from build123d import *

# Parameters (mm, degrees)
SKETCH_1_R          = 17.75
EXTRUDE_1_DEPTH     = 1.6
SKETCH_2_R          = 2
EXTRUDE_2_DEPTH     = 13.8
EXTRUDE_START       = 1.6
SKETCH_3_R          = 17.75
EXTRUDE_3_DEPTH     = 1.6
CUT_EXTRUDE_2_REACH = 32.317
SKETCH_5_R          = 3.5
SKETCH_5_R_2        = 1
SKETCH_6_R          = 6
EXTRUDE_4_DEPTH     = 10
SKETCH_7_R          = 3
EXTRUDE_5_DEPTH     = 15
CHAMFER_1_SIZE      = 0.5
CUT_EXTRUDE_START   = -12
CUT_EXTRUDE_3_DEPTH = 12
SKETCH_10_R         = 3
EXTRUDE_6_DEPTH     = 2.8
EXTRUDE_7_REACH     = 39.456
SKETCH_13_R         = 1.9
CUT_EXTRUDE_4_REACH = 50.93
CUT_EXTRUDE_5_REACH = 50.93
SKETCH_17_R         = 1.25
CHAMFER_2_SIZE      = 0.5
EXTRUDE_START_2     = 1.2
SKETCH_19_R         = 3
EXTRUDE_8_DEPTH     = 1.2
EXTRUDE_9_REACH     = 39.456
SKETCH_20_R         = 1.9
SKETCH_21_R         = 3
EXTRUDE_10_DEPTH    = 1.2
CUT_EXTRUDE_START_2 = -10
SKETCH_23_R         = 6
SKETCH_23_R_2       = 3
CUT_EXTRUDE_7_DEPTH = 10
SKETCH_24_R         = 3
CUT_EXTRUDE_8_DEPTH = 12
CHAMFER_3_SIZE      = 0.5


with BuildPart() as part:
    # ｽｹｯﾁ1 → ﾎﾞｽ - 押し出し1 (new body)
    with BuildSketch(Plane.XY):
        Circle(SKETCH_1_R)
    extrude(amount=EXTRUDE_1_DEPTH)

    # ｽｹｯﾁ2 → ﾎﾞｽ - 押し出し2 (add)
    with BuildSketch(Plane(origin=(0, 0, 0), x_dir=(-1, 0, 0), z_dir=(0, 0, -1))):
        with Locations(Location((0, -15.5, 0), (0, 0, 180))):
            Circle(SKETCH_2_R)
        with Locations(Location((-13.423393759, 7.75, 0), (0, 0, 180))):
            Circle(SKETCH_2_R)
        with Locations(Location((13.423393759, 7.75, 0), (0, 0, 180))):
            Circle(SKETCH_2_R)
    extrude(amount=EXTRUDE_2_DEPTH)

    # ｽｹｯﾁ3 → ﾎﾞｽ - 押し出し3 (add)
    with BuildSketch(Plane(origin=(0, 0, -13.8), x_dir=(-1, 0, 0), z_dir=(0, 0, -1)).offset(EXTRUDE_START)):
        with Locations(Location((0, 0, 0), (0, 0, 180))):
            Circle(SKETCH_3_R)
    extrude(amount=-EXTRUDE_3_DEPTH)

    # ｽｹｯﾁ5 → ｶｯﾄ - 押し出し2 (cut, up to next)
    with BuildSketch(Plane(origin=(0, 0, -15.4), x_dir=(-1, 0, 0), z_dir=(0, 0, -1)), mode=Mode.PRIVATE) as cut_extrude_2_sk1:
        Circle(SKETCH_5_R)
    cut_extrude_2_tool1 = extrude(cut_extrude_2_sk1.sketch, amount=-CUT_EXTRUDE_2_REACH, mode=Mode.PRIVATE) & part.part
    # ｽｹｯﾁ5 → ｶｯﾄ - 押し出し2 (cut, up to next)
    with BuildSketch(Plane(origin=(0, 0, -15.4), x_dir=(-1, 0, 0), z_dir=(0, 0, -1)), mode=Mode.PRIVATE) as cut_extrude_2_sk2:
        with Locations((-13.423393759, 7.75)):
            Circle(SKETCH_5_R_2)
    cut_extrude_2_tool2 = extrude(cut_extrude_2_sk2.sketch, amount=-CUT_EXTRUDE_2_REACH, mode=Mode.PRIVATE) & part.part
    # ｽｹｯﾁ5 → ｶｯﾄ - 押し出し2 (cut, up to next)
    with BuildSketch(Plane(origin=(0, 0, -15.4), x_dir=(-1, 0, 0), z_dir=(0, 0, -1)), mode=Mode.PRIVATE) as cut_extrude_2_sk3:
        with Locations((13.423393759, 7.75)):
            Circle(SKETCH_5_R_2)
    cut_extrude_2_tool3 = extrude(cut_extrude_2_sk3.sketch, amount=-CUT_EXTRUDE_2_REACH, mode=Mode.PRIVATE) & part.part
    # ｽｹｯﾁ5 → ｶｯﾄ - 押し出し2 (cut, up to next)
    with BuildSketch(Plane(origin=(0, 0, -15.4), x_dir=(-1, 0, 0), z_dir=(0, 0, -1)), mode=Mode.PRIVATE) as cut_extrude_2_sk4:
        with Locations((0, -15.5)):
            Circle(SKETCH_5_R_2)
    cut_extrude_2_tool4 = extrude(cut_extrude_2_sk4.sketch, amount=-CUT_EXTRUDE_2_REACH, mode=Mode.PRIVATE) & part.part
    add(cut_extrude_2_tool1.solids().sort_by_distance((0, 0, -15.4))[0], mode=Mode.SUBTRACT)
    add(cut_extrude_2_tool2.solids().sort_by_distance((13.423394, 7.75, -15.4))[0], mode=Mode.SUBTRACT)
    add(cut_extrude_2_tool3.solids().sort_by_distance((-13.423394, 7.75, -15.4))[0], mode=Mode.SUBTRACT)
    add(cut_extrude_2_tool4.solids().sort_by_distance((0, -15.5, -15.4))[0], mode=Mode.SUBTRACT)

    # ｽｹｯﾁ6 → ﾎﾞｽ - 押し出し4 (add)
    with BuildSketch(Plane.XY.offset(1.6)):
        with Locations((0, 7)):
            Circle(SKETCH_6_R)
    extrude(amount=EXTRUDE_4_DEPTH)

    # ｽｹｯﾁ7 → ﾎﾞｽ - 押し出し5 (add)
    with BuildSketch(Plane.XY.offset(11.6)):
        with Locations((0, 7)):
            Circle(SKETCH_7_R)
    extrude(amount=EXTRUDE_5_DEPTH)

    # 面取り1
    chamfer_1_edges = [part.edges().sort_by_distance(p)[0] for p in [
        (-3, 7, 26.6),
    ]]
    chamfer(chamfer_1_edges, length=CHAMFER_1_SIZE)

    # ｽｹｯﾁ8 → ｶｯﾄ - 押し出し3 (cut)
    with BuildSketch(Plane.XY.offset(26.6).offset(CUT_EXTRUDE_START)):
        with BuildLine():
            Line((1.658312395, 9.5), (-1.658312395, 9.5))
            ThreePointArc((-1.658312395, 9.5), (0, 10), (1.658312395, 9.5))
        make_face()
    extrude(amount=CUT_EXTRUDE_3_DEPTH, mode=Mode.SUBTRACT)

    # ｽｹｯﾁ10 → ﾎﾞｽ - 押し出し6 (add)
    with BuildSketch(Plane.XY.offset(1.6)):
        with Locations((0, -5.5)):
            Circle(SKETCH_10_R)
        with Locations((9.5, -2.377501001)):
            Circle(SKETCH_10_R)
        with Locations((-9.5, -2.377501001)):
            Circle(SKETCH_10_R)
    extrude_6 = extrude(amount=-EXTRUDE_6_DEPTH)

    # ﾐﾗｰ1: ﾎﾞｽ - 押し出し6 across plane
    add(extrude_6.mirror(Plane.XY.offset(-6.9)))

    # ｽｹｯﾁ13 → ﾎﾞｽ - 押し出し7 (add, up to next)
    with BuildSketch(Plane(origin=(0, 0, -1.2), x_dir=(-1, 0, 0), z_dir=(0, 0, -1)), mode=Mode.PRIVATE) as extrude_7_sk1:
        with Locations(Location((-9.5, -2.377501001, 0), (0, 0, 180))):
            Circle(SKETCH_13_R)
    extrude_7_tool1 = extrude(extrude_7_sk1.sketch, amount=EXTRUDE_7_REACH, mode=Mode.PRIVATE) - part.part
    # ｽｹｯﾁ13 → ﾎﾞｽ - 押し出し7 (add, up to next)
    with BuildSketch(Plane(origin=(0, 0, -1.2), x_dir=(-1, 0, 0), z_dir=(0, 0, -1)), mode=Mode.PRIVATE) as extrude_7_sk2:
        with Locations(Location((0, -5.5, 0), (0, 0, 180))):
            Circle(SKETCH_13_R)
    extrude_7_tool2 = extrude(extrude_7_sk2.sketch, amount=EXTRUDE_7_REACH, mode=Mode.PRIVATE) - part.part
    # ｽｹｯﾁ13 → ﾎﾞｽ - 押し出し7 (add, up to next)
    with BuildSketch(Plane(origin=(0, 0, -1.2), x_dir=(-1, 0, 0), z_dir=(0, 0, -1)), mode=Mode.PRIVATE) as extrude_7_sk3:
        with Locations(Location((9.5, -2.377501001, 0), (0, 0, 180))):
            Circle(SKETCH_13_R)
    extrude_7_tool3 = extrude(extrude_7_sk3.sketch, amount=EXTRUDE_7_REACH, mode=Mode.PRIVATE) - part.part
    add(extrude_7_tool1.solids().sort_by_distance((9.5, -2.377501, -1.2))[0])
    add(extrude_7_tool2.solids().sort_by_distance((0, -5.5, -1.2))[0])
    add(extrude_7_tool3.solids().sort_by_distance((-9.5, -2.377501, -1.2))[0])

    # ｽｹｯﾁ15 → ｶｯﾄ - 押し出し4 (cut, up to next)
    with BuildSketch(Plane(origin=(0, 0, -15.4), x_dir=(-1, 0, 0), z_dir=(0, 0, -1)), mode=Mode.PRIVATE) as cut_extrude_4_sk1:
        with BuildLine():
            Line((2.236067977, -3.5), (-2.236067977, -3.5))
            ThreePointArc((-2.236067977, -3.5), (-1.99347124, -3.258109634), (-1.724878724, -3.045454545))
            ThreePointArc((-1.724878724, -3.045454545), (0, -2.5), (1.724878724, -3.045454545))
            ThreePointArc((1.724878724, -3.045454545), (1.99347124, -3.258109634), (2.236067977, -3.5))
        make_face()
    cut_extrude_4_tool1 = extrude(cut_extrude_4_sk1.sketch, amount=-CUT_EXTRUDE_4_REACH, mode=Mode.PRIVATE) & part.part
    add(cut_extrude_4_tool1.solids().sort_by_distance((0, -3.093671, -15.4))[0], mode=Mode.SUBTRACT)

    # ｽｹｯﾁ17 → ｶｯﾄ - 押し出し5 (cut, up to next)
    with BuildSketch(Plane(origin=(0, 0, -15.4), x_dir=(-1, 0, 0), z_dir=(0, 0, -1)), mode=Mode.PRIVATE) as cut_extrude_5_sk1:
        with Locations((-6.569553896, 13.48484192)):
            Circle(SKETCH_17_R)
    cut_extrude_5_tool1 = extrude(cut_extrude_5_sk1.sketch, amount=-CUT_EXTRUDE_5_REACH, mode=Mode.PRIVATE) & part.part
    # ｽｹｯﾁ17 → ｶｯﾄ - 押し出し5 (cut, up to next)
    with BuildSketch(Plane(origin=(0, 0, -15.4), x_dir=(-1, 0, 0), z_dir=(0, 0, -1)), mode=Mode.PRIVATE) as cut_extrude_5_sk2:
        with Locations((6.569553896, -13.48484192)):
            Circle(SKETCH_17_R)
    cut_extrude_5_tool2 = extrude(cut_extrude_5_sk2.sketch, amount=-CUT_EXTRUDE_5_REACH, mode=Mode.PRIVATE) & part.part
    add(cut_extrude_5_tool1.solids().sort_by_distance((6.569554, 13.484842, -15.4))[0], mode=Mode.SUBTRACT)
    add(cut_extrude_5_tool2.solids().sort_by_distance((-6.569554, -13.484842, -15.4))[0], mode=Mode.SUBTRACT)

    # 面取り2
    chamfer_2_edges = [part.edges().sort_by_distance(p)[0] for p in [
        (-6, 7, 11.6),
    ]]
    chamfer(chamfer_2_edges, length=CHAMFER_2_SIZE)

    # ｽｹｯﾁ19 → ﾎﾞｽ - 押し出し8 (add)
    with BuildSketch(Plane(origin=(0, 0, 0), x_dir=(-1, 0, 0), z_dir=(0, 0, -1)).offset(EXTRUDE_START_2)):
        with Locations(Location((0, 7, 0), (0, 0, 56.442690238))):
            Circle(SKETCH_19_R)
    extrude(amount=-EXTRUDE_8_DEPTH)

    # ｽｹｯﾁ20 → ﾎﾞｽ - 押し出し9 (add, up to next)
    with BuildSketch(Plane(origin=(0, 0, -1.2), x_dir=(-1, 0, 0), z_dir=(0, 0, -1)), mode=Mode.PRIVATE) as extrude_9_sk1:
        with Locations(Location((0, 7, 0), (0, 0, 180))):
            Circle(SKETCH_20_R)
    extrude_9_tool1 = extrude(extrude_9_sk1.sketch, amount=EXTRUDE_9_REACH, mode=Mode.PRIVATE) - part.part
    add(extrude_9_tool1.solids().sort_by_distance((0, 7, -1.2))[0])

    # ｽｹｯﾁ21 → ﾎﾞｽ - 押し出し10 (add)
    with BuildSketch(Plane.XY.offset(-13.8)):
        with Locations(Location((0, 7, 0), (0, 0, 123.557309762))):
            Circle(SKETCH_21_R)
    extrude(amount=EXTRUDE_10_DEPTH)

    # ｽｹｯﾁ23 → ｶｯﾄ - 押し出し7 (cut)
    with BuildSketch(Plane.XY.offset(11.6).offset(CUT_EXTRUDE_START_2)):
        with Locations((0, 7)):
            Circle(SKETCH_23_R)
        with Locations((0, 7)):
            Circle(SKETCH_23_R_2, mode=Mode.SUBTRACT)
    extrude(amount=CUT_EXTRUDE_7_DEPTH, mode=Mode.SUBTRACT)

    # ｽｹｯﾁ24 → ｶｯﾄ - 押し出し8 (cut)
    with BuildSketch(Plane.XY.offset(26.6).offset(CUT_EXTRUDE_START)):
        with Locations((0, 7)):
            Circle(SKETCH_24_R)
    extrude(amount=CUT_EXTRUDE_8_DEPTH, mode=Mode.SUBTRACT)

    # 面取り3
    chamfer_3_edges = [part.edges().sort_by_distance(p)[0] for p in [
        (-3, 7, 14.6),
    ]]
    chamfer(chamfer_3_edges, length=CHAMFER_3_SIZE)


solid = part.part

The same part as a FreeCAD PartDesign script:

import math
import FreeCAD as App
import Part
import Sketcher


def edges_at(feature, points):
    """Names of the edges that pass closest to the given points."""
    edges = feature.Shape.Edges
    near = lambda p: min(range(len(edges)), key=lambda i: edges[i].distToShape(Part.Vertex(*p))[0])
    return sorted({f"Edge{near(p) + 1}" for p in points})

doc = App.newDocument("Part")
body = doc.addObject("PartDesign::Body", "Body")

# Sketch on XY plane
sketch1 = doc.addObject("Sketcher::SketchObject", "Sketch")
body.addObject(sketch1)
sketch1.AttachmentSupport = (doc.XY_Plane, [""])
sketch1.MapMode = "FlatFace"
sketch1.addGeometry(Part.Circle(App.Vector(0, 0, 0), App.Vector(0, 0, 1), 18), False)
sketch1.addConstraint([
    Sketcher.Constraint("Coincident", 0, 3, -1, 1),
    Sketcher.Constraint("Diameter", 0, 35.5),
])
pad1 = doc.addObject("PartDesign::Pad", "Pad")
body.addObject(pad1)
pad1.Profile = sketch1
pad1.Length = 1.6

# Sketch on XY plane
sketch2 = doc.addObject("Sketcher::SketchObject", "Sketch001")
body.addObject(sketch2)
sketch2.AttachmentSupport = (doc.XY_Plane, [""])
sketch2.MapMode = "FlatFace"
sketch2.addGeometry([
    Part.Circle(App.Vector(0, -15.5, 0), App.Vector(0, 0, 1), 2),
    Part.Circle(App.Vector(13.4, 7.8, 0), App.Vector(0, 0, 1), 2),
    Part.Circle(App.Vector(-13.4, 7.8, 0), App.Vector(0, 0, 1), 2),
], False)
sketch2.addConstraint([
    Sketcher.Constraint("Equal", 0, 1),
    Sketcher.Constraint("Equal", 1, 2),
    Sketcher.Constraint("Symmetric", 1, 3, 2, 3, -2),
    Sketcher.Constraint("PointOnObject", 0, 3, -2),
    Sketcher.Constraint("Diameter", 0, 4.0),
    Sketcher.Constraint("DistanceY", 0, 3, -1, 1, 15.5),
    Sketcher.Constraint("DistanceY", -1, 1, 1, 3, 7.75),
    Sketcher.Constraint("DistanceX", -1, 1, 1, 3, 13.423394),
])
pad2 = doc.addObject("PartDesign::Pad", "Pad001")
body.addObject(pad2)
pad2.Profile = sketch2
pad2.Length = 13.8
pad2.Reversed = True

# Sketch on XY plane
sketch3 = doc.addObject("Sketcher::SketchObject", "Sketch002")
body.addObject(sketch3)
sketch3.AttachmentSupport = (doc.XY_Plane, [""])
sketch3.MapMode = "FlatFace"
sketch3.AttachmentOffset = App.Placement(App.Vector(0, 0, -15.4), App.Rotation())
sketch3.addGeometry(Part.Circle(App.Vector(0, 0, 0), App.Vector(0, 0, 1), 18), False)
sketch3.addConstraint([
    Sketcher.Constraint("Coincident", 0, 3, -1, 1),
    Sketcher.Constraint("Diameter", 0, 35.5),
])
pad3 = doc.addObject("PartDesign::Pad", "Pad002")
body.addObject(pad3)
pad3.Profile = sketch3
pad3.Length = 1.6

# Sketch on XY plane
sketch4 = doc.addObject("Sketcher::SketchObject", "Sketch003")
body.addObject(sketch4)
sketch4.AttachmentSupport = (doc.XY_Plane, [""])
sketch4.MapMode = "FlatFace"
sketch4.AttachmentOffset = App.Placement(App.Vector(0, 0, -15.4), App.Rotation())
sketch4.addGeometry(Part.Circle(App.Vector(0, 0, 0), App.Vector(0, 0, 1), 3.5), False)
sketch4.addConstraint([
    Sketcher.Constraint("Coincident", 0, 3, -1, 1),
    Sketcher.Constraint("Diameter", 0, 7.0),
])
pocket1 = doc.addObject("PartDesign::Pocket", "Pocket")
body.addObject(pocket1)
pocket1.Profile = sketch4
pocket1.Type = "UpToFirst"
pocket1.Reversed = True

# Sketch on XY plane
sketch5 = doc.addObject("Sketcher::SketchObject", "Sketch004")
body.addObject(sketch5)
sketch5.AttachmentSupport = (doc.XY_Plane, [""])
sketch5.MapMode = "FlatFace"
sketch5.AttachmentOffset = App.Placement(App.Vector(0, 0, -15.4), App.Rotation())
sketch5.addGeometry(Part.Circle(App.Vector(13.4, 7.8, 0), App.Vector(0, 0, 1), 1), False)
sketch5.addConstraint([
    Sketcher.Constraint("Diameter", 0, 2.0),
    Sketcher.Constraint("DistanceY", -1, 1, 0, 3, 7.75),
    Sketcher.Constraint("DistanceX", -1, 1, 0, 3, 13.423394),
])
pocket2 = doc.addObject("PartDesign::Pocket", "Pocket001")
body.addObject(pocket2)
pocket2.Profile = sketch5
pocket2.Type = "UpToFirst"
pocket2.Reversed = True

# Sketch on XY plane
sketch6 = doc.addObject("Sketcher::SketchObject", "Sketch005")
body.addObject(sketch6)
sketch6.AttachmentSupport = (doc.XY_Plane, [""])
sketch6.MapMode = "FlatFace"
sketch6.AttachmentOffset = App.Placement(App.Vector(0, 0, -15.4), App.Rotation())
sketch6.addGeometry(Part.Circle(App.Vector(-13.4, 7.8, 0), App.Vector(0, 0, 1), 1), False)
sketch6.addConstraint([
    Sketcher.Constraint("Diameter", 0, 2.0),
    Sketcher.Constraint("DistanceY", -1, 1, 0, 3, 7.75),
    Sketcher.Constraint("DistanceX", 0, 3, -1, 1, 13.423394),
])
pocket3 = doc.addObject("PartDesign::Pocket", "Pocket002")
body.addObject(pocket3)
pocket3.Profile = sketch6
pocket3.Type = "UpToFirst"
pocket3.Reversed = True

# Sketch on XY plane
sketch7 = doc.addObject("Sketcher::SketchObject", "Sketch006")
body.addObject(sketch7)
sketch7.AttachmentSupport = (doc.XY_Plane, [""])
sketch7.MapMode = "FlatFace"
sketch7.AttachmentOffset = App.Placement(App.Vector(0, 0, -15.4), App.Rotation())
sketch7.addGeometry(Part.Circle(App.Vector(0, -15.5, 0), App.Vector(0, 0, 1), 1), False)
sketch7.addConstraint([
    Sketcher.Constraint("PointOnObject", 0, 3, -2),
    Sketcher.Constraint("Diameter", 0, 2.0),
    Sketcher.Constraint("DistanceY", 0, 3, -1, 1, 15.5),
])
pocket4 = doc.addObject("PartDesign::Pocket", "Pocket003")
body.addObject(pocket4)
pocket4.Profile = sketch7
pocket4.Type = "UpToFirst"
pocket4.Reversed = True

# Sketch on XY plane
sketch8 = doc.addObject("Sketcher::SketchObject", "Sketch007")
body.addObject(sketch8)
sketch8.AttachmentSupport = (doc.XY_Plane, [""])
sketch8.MapMode = "FlatFace"
sketch8.AttachmentOffset = App.Placement(App.Vector(0, 0, 1.6), App.Rotation())
sketch8.addGeometry(Part.Circle(App.Vector(0, 7, 0), App.Vector(0, 0, 1), 6), False)
sketch8.addConstraint([
    Sketcher.Constraint("PointOnObject", 0, 3, -2),
    Sketcher.Constraint("Diameter", 0, 12.0),
    Sketcher.Constraint("DistanceY", -1, 1, 0, 3, 7.0),
])
pad4 = doc.addObject("PartDesign::Pad", "Pad003")
body.addObject(pad4)
pad4.Profile = sketch8
pad4.Length = 10

# Sketch on XY plane
sketch9 = doc.addObject("Sketcher::SketchObject", "Sketch008")
body.addObject(sketch9)
sketch9.AttachmentSupport = (doc.XY_Plane, [""])
sketch9.MapMode = "FlatFace"
sketch9.AttachmentOffset = App.Placement(App.Vector(0, 0, 11.6), App.Rotation())
sketch9.addGeometry(Part.Circle(App.Vector(0, 7, 0), App.Vector(0, 0, 1), 3), False)
sketch9.addConstraint([
    Sketcher.Constraint("PointOnObject", 0, 3, -2),
    Sketcher.Constraint("Diameter", 0, 6.0),
    Sketcher.Constraint("DistanceY", -1, 1, 0, 3, 7.0),
])
pad5 = doc.addObject("PartDesign::Pad", "Pad004")
body.addObject(pad5)
pad5.Profile = sketch9
pad5.Length = 15
doc.recompute()

chamfer = doc.addObject("PartDesign::Chamfer", "Chamfer")
body.addObject(chamfer)
chamfer.Base = (pad5, edges_at(pad5, [(-3, 7, 26.6)]))
chamfer.Size = 0.5

# Sketch on XY plane
sketch10 = doc.addObject("Sketcher::SketchObject", "Sketch009")
body.addObject(sketch10)
sketch10.AttachmentSupport = (doc.XY_Plane, [""])
sketch10.MapMode = "FlatFace"
sketch10.AttachmentOffset = App.Placement(App.Vector(0, 0, 14.6), App.Rotation())
sketch10.addGeometry([
    Part.LineSegment(App.Vector(-1.7, 9.5, 0), App.Vector(1.7, 9.5, 0)),
    Part.ArcOfCircle(Part.Circle(App.Vector(0, 7, 0), App.Vector(0, 0, 1), 3), math.radians(56), math.radians(124)),
], False)
sketch10.addConstraint([
    Sketcher.Constraint("Coincident", 0, 1, 1, 2),
    Sketcher.Constraint("Coincident", 1, 1, 0, 2),
    Sketcher.Constraint("Horizontal", 0),
    Sketcher.Constraint("PointOnObject", 1, 3, -2),
    Sketcher.Constraint("Radius", 1, 3.0),
    Sketcher.Constraint("DistanceY", -1, 1, 1, 3, 7.0),
    Sketcher.Constraint("DistanceY", -1, 1, 0, 1, 9.5),
])
pocket5 = doc.addObject("PartDesign::Pocket", "Pocket004")
body.addObject(pocket5)
pocket5.Profile = sketch10
pocket5.Length = 12
pocket5.Reversed = True

# Sketch on XY plane
sketch11 = doc.addObject("Sketcher::SketchObject", "Sketch010")
body.addObject(sketch11)
sketch11.AttachmentSupport = (doc.XY_Plane, [""])
sketch11.MapMode = "FlatFace"
sketch11.AttachmentOffset = App.Placement(App.Vector(0, 0, 1.6), App.Rotation())
sketch11.addGeometry([
    Part.Circle(App.Vector(0, -5.5, 0), App.Vector(0, 0, 1), 3),
    Part.Circle(App.Vector(9.5, -2.4, 0), App.Vector(0, 0, 1), 3),
    Part.Circle(App.Vector(-9.5, -2.4, 0), App.Vector(0, 0, 1), 3),
], False)
sketch11.addConstraint([
    Sketcher.Constraint("Equal", 0, 1),
    Sketcher.Constraint("Equal", 1, 2),
    Sketcher.Constraint("Symmetric", 1, 3, 2, 3, -2),
    Sketcher.Constraint("PointOnObject", 0, 3, -2),
    Sketcher.Constraint("Diameter", 0, 6.0),
    Sketcher.Constraint("DistanceX", 2, 3, 1, 3, 19.0),
    Sketcher.Constraint("DistanceY", 0, 3, -1, 1, 5.5),
    Sketcher.Constraint("DistanceY", 1, 3, -1, 1, 2.377501),
])
pad6 = doc.addObject("PartDesign::Pad", "Pad005")
body.addObject(pad6)
pad6.Profile = sketch11
pad6.Length = 2.8
pad6.Reversed = True
doc.recompute()

datumplane = doc.addObject("PartDesign::Plane", "DatumPlane")
body.addObject(datumplane)
datumplane.AttachmentSupport = (doc.XY_Plane, [""])
datumplane.MapMode = "FlatFace"
datumplane.AttachmentOffset = App.Placement(App.Vector(0, 0, -6.9), App.Rotation())
mirrored = doc.addObject("PartDesign::Mirrored", "Mirrored")
body.addObject(mirrored)
mirrored.Originals = [pad6]
mirrored.MirrorPlane = (datumplane, [""])
body.Tip = mirrored

# Sketch on XY plane
sketch12 = doc.addObject("Sketcher::SketchObject", "Sketch011")
body.addObject(sketch12)
sketch12.AttachmentSupport = (doc.XY_Plane, [""])
sketch12.MapMode = "FlatFace"
sketch12.AttachmentOffset = App.Placement(App.Vector(0, 0, -1.2), App.Rotation())
sketch12.addGeometry(Part.Circle(App.Vector(9.5, -2.4, 0), App.Vector(0, 0, 1), 1.9), False)
sketch12.addConstraint([
    Sketcher.Constraint("Diameter", 0, 3.8),
    Sketcher.Constraint("DistanceX", -1, 1, 0, 3, 9.5),
    Sketcher.Constraint("DistanceY", 0, 3, -1, 1, 2.377501),
])
pad7 = doc.addObject("PartDesign::Pad", "Pad006")
body.addObject(pad7)
pad7.Profile = sketch12
pad7.Type = "UpToFirst"
pad7.Reversed = True

# Sketch on XY plane
sketch13 = doc.addObject("Sketcher::SketchObject", "Sketch012")
body.addObject(sketch13)
sketch13.AttachmentSupport = (doc.XY_Plane, [""])
sketch13.MapMode = "FlatFace"
sketch13.AttachmentOffset = App.Placement(App.Vector(0, 0, -1.2), App.Rotation())
sketch13.addGeometry(Part.Circle(App.Vector(0, -5.5, 0), App.Vector(0, 0, 1), 1.9), False)
sketch13.addConstraint([
    Sketcher.Constraint("PointOnObject", 0, 3, -2),
    Sketcher.Constraint("Diameter", 0, 3.8),
    Sketcher.Constraint("DistanceY", 0, 3, -1, 1, 5.5),
])
pad8 = doc.addObject("PartDesign::Pad", "Pad007")
body.addObject(pad8)
pad8.Profile = sketch13
pad8.Type = "UpToFirst"
pad8.Reversed = True

# Sketch on XY plane
sketch14 = doc.addObject("Sketcher::SketchObject", "Sketch013")
body.addObject(sketch14)
sketch14.AttachmentSupport = (doc.XY_Plane, [""])
sketch14.MapMode = "FlatFace"
sketch14.AttachmentOffset = App.Placement(App.Vector(0, 0, -1.2), App.Rotation())
sketch14.addGeometry(Part.Circle(App.Vector(-9.5, -2.4, 0), App.Vector(0, 0, 1), 1.9), False)
sketch14.addConstraint([
    Sketcher.Constraint("Diameter", 0, 3.8),
    Sketcher.Constraint("DistanceX", 0, 3, -1, 1, 9.5),
    Sketcher.Constraint("DistanceY", 0, 3, -1, 1, 2.377501),
])
pad9 = doc.addObject("PartDesign::Pad", "Pad008")
body.addObject(pad9)
pad9.Profile = sketch14
pad9.Type = "UpToFirst"
pad9.Reversed = True

# Sketch on XY plane
sketch15 = doc.addObject("Sketcher::SketchObject", "Sketch014")
body.addObject(sketch15)
sketch15.AttachmentSupport = (doc.XY_Plane, [""])
sketch15.MapMode = "FlatFace"
sketch15.AttachmentOffset = App.Placement(App.Vector(0, 0, -15.4), App.Rotation())
sketch15.addGeometry([
    Part.LineSegment(App.Vector(2.2, -3.5, 0), App.Vector(-2.2, -3.5, 0)),
    Part.ArcOfCircle(Part.Circle(App.Vector(0, -5.5, 0), App.Vector(0, 0, 1), 3), math.radians(125.1), math.radians(138.19)),
    Part.ArcOfCircle(Part.Circle(App.Vector(0, -5.5, 0), App.Vector(0, 0, 1), 3), math.radians(55), math.radians(125)),
    Part.ArcOfCircle(Part.Circle(App.Vector(0, -5.5, 0), App.Vector(0, 0, 1), 3), math.radians(41.81), math.radians(54.9)),
], False)
sketch15.addConstraint([
    Sketcher.Constraint("Coincident", 0, 2, 1, 2),
    Sketcher.Constraint("Tangent", 1, 1, 2, 2),
    Sketcher.Constraint("Tangent", 2, 1, 3, 2),
    Sketcher.Constraint("Coincident", 3, 1, 0, 1),
    Sketcher.Constraint("Horizontal", 0),
    Sketcher.Constraint("Coincident", 3, 3, 1, 3),
    Sketcher.Constraint("Symmetric", 1, 1, 2, 1, -2),
    Sketcher.Constraint("Radius", 1, 3.0),
    Sketcher.Constraint("DistanceY", 3, 3, 0, 2, 2.0),
    Sketcher.Constraint("DistanceY", 1, 3, -1, 1, 5.5),
    Sketcher.Constraint("DistanceX", 1, 1, -1, 1, 1.724879),
])
pocket6 = doc.addObject("PartDesign::Pocket", "Pocket005")
body.addObject(pocket6)
pocket6.Profile = sketch15
pocket6.Type = "UpToFirst"
pocket6.Reversed = True

# Sketch on XY plane
sketch16 = doc.addObject("Sketcher::SketchObject", "Sketch015")
body.addObject(sketch16)
sketch16.AttachmentSupport = (doc.XY_Plane, [""])
sketch16.MapMode = "FlatFace"
sketch16.AttachmentOffset = App.Placement(App.Vector(0, 0, -15.4), App.Rotation())
sketch16.addGeometry(Part.Circle(App.Vector(6.6, 13.5, 0), App.Vector(0, 0, 1), 1.2), False)
sketch16.addConstraint([
    Sketcher.Constraint("Diameter", 0, 2.5),
    Sketcher.Constraint("DistanceY", -1, 1, 0, 3, 13.484842),
    Sketcher.Constraint("DistanceX", -1, 1, 0, 3, 6.569554),
])
pocket7 = doc.addObject("PartDesign::Pocket", "Pocket006")
body.addObject(pocket7)
pocket7.Profile = sketch16
pocket7.Type = "UpToFirst"
pocket7.Reversed = True

# Sketch on XY plane
sketch17 = doc.addObject("Sketcher::SketchObject", "Sketch016")
body.addObject(sketch17)
sketch17.AttachmentSupport = (doc.XY_Plane, [""])
sketch17.MapMode = "FlatFace"
sketch17.AttachmentOffset = App.Placement(App.Vector(0, 0, -15.4), App.Rotation())
sketch17.addGeometry(Part.Circle(App.Vector(-6.6, -13.5, 0), App.Vector(0, 0, 1), 1.2), False)
sketch17.addConstraint([
    Sketcher.Constraint("Diameter", 0, 2.5),
    Sketcher.Constraint("DistanceY", 0, 3, -1, 1, 13.484842),
    Sketcher.Constraint("DistanceX", 0, 3, -1, 1, 6.569554),
])
pocket8 = doc.addObject("PartDesign::Pocket", "Pocket007")
body.addObject(pocket8)
pocket8.Profile = sketch17
pocket8.Type = "UpToFirst"
pocket8.Reversed = True
doc.recompute()

chamfer2 = doc.addObject("PartDesign::Chamfer", "Chamfer001")
body.addObject(chamfer2)
chamfer2.Base = (pocket8, edges_at(pocket8, [(-6, 7, 11.6)]))
chamfer2.Size = 0.5

# Sketch on XY plane
sketch18 = doc.addObject("Sketcher::SketchObject", "Sketch017")
body.addObject(sketch18)
sketch18.AttachmentSupport = (doc.XY_Plane, [""])
sketch18.MapMode = "FlatFace"
sketch18.AttachmentOffset = App.Placement(App.Vector(0, 0, -1.2), App.Rotation())
sketch18.addGeometry(Part.Circle(App.Vector(0, 7, 0), App.Vector(0, 0, 1), 3), False)
sketch18.addConstraint([
    Sketcher.Constraint("PointOnObject", 0, 3, -2),
    Sketcher.Constraint("Diameter", 0, 6.0),
    Sketcher.Constraint("DistanceY", -1, 1, 0, 3, 7.0),
])
pad10 = doc.addObject("PartDesign::Pad", "Pad009")
body.addObject(pad10)
pad10.Profile = sketch18
pad10.Length = 1.2

# Sketch on XY plane
sketch19 = doc.addObject("Sketcher::SketchObject", "Sketch018")
body.addObject(sketch19)
sketch19.AttachmentSupport = (doc.XY_Plane, [""])
sketch19.MapMode = "FlatFace"
sketch19.AttachmentOffset = App.Placement(App.Vector(0, 0, -1.2), App.Rotation())
sketch19.addGeometry(Part.Circle(App.Vector(0, 7, 0), App.Vector(0, 0, 1), 1.9), False)
sketch19.addConstraint([
    Sketcher.Constraint("PointOnObject", 0, 3, -2),
    Sketcher.Constraint("Diameter", 0, 3.8),
    Sketcher.Constraint("DistanceY", -1, 1, 0, 3, 7.0),
])
pad11 = doc.addObject("PartDesign::Pad", "Pad010")
body.addObject(pad11)
pad11.Profile = sketch19
pad11.Type = "UpToFirst"
pad11.Reversed = True

# Sketch on XY plane
sketch20 = doc.addObject("Sketcher::SketchObject", "Sketch019")
body.addObject(sketch20)
sketch20.AttachmentSupport = (doc.XY_Plane, [""])
sketch20.MapMode = "FlatFace"
sketch20.AttachmentOffset = App.Placement(App.Vector(0, 0, -13.8), App.Rotation())
sketch20.addGeometry(Part.Circle(App.Vector(0, 7, 0), App.Vector(0, 0, 1), 3), False)
sketch20.addConstraint([
    Sketcher.Constraint("PointOnObject", 0, 3, -2),
    Sketcher.Constraint("Diameter", 0, 6.0),
    Sketcher.Constraint("DistanceY", -1, 1, 0, 3, 7.0),
])
pad12 = doc.addObject("PartDesign::Pad", "Pad011")
body.addObject(pad12)
pad12.Profile = sketch20
pad12.Length = 1.2

# Sketch on XY plane
sketch21 = doc.addObject("Sketcher::SketchObject", "Sketch020")
body.addObject(sketch21)
sketch21.AttachmentSupport = (doc.XY_Plane, [""])
sketch21.MapMode = "FlatFace"
sketch21.AttachmentOffset = App.Placement(App.Vector(0, 0, 1.6), App.Rotation())
sketch21.addGeometry([
    Part.Circle(App.Vector(0, 7, 0), App.Vector(0, 0, 1), 6),
    Part.Circle(App.Vector(0, 7, 0), App.Vector(0, 0, 1), 3),
], False)
sketch21.addConstraint([
    Sketcher.Constraint("Coincident", 1, 3, 0, 3),
    Sketcher.Constraint("PointOnObject", 0, 3, -2),
    Sketcher.Constraint("Diameter", 0, 12.0),
    Sketcher.Constraint("Diameter", 1, 6.0),
    Sketcher.Constraint("DistanceY", -1, 1, 0, 3, 7.0),
])
pocket9 = doc.addObject("PartDesign::Pocket", "Pocket008")
body.addObject(pocket9)
pocket9.Profile = sketch21
pocket9.Length = 10
pocket9.Reversed = True

# Sketch on XY plane
sketch22 = doc.addObject("Sketcher::SketchObject", "Sketch021")
body.addObject(sketch22)
sketch22.AttachmentSupport = (doc.XY_Plane, [""])
sketch22.MapMode = "FlatFace"
sketch22.AttachmentOffset = App.Placement(App.Vector(0, 0, 14.6), App.Rotation())
sketch22.addGeometry(Part.Circle(App.Vector(0, 7, 0), App.Vector(0, 0, 1), 3), False)
sketch22.addConstraint([
    Sketcher.Constraint("PointOnObject", 0, 3, -2),
    Sketcher.Constraint("Diameter", 0, 6.0),
    Sketcher.Constraint("DistanceY", -1, 1, 0, 3, 7.0),
])
pocket10 = doc.addObject("PartDesign::Pocket", "Pocket009")
body.addObject(pocket10)
pocket10.Profile = sketch22
pocket10.Length = 12
pocket10.Reversed = True
doc.recompute()

chamfer3 = doc.addObject("PartDesign::Chamfer", "Chamfer002")
body.addObject(chamfer3)
chamfer3.Base = (pocket10, edges_at(pocket10, [(-1.419, 4.357, 14.6)]))
chamfer3.Size = 0.5

doc.recompute()
